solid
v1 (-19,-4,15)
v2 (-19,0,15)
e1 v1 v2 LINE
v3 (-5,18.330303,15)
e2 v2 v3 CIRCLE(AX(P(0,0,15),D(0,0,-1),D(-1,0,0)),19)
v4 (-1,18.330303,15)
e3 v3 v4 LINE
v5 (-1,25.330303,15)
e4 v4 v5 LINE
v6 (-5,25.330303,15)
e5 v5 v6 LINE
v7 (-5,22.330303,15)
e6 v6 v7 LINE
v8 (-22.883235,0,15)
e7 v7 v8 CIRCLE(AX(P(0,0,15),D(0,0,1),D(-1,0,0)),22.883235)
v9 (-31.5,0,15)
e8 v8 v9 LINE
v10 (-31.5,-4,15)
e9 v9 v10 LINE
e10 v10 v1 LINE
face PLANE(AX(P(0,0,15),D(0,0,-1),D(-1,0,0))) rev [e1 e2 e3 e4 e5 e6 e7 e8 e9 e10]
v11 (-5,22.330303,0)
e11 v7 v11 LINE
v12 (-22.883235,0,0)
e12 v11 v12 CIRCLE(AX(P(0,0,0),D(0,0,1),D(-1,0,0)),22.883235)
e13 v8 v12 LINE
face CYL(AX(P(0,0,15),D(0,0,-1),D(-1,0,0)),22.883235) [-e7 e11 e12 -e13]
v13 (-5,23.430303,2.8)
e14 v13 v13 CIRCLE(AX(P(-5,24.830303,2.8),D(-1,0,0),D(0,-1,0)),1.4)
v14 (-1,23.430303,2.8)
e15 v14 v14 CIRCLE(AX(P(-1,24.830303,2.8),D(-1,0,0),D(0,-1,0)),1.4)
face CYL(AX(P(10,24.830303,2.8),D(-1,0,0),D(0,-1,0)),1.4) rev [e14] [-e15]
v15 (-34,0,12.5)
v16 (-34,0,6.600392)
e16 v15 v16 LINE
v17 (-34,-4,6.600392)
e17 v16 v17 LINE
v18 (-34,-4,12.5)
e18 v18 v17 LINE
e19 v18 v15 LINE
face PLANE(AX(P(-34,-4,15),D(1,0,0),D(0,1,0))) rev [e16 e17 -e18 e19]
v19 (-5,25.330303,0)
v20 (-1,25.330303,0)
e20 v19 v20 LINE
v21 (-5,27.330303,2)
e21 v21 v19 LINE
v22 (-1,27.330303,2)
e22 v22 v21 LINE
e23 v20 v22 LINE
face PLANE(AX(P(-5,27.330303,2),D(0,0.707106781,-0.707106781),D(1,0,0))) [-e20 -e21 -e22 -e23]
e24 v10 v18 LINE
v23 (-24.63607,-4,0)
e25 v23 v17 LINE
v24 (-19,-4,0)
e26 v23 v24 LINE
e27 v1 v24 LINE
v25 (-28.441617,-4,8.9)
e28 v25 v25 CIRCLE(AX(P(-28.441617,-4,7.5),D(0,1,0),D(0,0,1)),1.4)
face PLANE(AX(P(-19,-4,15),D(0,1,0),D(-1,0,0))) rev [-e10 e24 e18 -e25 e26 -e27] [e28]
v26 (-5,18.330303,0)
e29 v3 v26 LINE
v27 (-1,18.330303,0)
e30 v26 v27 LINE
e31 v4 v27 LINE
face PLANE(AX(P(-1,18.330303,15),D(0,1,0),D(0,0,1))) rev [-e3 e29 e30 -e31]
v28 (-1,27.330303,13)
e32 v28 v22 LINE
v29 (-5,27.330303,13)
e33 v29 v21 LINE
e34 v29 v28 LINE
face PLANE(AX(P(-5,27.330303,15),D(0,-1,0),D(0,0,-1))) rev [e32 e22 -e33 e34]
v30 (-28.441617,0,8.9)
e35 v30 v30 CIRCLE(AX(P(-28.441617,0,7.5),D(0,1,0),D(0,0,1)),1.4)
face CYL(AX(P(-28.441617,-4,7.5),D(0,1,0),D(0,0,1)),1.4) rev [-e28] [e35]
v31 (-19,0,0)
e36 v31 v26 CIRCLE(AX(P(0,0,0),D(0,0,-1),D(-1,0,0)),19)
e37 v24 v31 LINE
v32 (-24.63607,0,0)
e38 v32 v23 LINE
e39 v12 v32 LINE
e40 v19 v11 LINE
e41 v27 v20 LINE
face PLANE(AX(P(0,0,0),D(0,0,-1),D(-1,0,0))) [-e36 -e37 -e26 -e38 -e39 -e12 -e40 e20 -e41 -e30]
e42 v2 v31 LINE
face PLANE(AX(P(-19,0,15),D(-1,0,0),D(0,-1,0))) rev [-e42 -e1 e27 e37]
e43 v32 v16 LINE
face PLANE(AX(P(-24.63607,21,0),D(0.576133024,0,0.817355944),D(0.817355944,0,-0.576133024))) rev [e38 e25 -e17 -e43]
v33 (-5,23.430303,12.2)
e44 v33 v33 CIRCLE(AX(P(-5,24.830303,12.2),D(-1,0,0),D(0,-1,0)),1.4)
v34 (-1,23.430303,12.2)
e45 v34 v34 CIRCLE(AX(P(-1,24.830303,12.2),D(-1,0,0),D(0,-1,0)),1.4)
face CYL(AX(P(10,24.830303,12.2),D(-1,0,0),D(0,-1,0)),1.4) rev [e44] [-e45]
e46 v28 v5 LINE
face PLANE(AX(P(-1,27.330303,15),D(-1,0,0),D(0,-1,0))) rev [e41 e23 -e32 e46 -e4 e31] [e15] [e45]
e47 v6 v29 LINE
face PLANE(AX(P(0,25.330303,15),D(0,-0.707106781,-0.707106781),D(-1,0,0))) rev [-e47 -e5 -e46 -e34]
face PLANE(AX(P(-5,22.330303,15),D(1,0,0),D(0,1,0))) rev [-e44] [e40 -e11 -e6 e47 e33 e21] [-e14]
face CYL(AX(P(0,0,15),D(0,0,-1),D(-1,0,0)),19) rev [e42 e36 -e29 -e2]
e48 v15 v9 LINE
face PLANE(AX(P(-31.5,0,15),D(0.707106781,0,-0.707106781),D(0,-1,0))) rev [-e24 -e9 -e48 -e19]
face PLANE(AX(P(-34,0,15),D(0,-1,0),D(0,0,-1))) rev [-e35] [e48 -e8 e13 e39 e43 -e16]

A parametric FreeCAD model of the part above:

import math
import FreeCAD as App
import Part
import Sketcher
from FreeCAD import Vector
Q = App.Units.Quantity


def edges_at(feature, points):
    """Names of the edges that pass closest to the given points."""
    edges = feature.Shape.Edges
    near = lambda p: min(range(len(edges)), key=lambda i: edges[i].distToShape(Part.Vertex(*p))[0])
    return sorted({f"Edge{near(p) + 1}" for p in points})


def add_polygon(sketch, points):
    """Adds a closed chain of lines whose ends are joined by coincident constraints."""
    first, n = sketch.GeometryCount, len(points)
    for a, b in zip(points, points[1:] + points[:1]):
        sketch.addGeometry(Part.LineSegment(App.Vector(*a, 0), App.Vector(*b, 0)), False)
    for i in range(n):
        sketch.addConstraint(Sketcher.Constraint("Coincident", first + i, 2, first + (i + 1) % n, 1))

doc = App.newDocument("Part")
body = doc.addObject("PartDesign::Body", "Body")

sketch1 = body.newObject("Sketcher::SketchObject", "Sketch")
sketch1.AttachmentSupport = (doc.getObject("XY_Plane"), [""])
sketch1.MapMode = "FlatFace"
sketch1.addGeometry(Part.LineSegment(Vector(-19, -4, 0), Vector(-19, 0, 0)), False)
sketch1.addGeometry(Part.ArcOfCircle(Part.Circle(Vector(0, 0, 0), Vector(0, 0, 1), 19), math.radians(105.257523), math.radians(180)), False)
sketch1.addGeometry(Part.LineSegment(Vector(-5, 18.330303, 0), Vector(-1, 18.330303, 0)), False)
sketch1.addGeometry(Part.LineSegment(Vector(-1, 18.330303, 0), Vector(-1, 27.330303, 0)), False)
sketch1.addGeometry(Part.LineSegment(Vector(-1, 27.330303, 0), Vector(-5, 27.330303, 0)), False)
sketch1.addGeometry(Part.LineSegment(Vector(-5, 27.330303, 0), Vector(-5, 22.330303, 0)), False)
sketch1.addGeometry(Part.ArcOfCircle(Part.Circle(Vector(0, 0, 0), Vector(0, 0, 1), 22.883235), math.radians(102.62098), math.radians(180)), False)
sketch1.addGeometry(Part.LineSegment(Vector(-22.883235, 0, 0), Vector(-34, 0, 0)), False)
sketch1.addGeometry(Part.LineSegment(Vector(-34, 0, 0), Vector(-34, -4, 0)), False)
sketch1.addGeometry(Part.LineSegment(Vector(-34, -4, 0), Vector(-19, -4, 0)), False)
sketch1.addConstraint(Sketcher.Constraint("Tangent", 0, 2, 1, 2))
sketch1.addConstraint(Sketcher.Constraint("Coincident", 1, 1, 2, 1))
sketch1.addConstraint(Sketcher.Constraint("Coincident", 2, 2, 3, 1))
sketch1.addConstraint(Sketcher.Constraint("Coincident", 3, 2, 4, 1))
sketch1.addConstraint(Sketcher.Constraint("Coincident", 4, 2, 5, 1))
sketch1.addConstraint(Sketcher.Constraint("Coincident", 5, 2, 6, 1))
sketch1.addConstraint(Sketcher.Constraint("Coincident", 6, 2, 7, 1))
sketch1.addConstraint(Sketcher.Constraint("Coincident", 7, 2, 8, 1))
sketch1.addConstraint(Sketcher.Constraint("Coincident", 8, 2, 9, 1))
sketch1.addConstraint(Sketcher.Constraint("Coincident", 9, 2, 0, 1))
sketch1.addConstraint(Sketcher.Constraint("Vertical", 0))
sketch1.addConstraint(Sketcher.Constraint("Horizontal", 2))
sketch1.addConstraint(Sketcher.Constraint("Vertical", 3))
sketch1.addConstraint(Sketcher.Constraint("Horizontal", 4))
sketch1.addConstraint(Sketcher.Constraint("Vertical", 5))
sketch1.addConstraint(Sketcher.Constraint("Horizontal", 7))
sketch1.addConstraint(Sketcher.Constraint("Vertical", 8))
sketch1.addConstraint(Sketcher.Constraint("Horizontal", 9))
sketch1.addConstraint(Sketcher.Constraint("Coincident", 1, 3, -1, 1))
sketch1.addConstraint(Sketcher.Constraint("Coincident", 6, 3, -1, 1))
sketch1.addConstraint(Sketcher.Constraint("PointOnObject", 6, 2, -1))
sketch1.addConstraint(Sketcher.Constraint("Vertical", 1, 1, 4, 2))
sketch1.addConstraint(Sketcher.Constraint("Equal", 4, 0))
sketch1.addConstraint(Sketcher.Constraint("Radius", 1, 19.0))
sketch1.addConstraint(Sketcher.Constraint("DistanceX", 2, 1, 2, 2, 4.0))
sketch1.addConstraint(Sketcher.Constraint("DistanceX", 9, 1, 9, 2, 15.0))
sketch1.addConstraint(Sketcher.Constraint("DistanceY", 3, 1, 3, 2, 9.0))
sketch1.addConstraint(Sketcher.Constraint("DistanceY", 5, 2, 5, 1, 5.0))
sketch1.addConstraint(Sketcher.Constraint("DistanceX", 1, 1, -1, 1, 5.0))
pad1 = body.newObject("PartDesign::Pad", "Pad")
pad1.Profile = sketch1
pad1.Length = 15
doc.recompute()

chamfer = body.newObject("PartDesign::Chamfer", "Chamfer")
chamfer.Base = (pad1, edges_at(pad1, [(-34, -2, 0), (-34, -2, 15)]))
chamfer.Size = 2.5

sketch2 = body.newObject("Sketcher::SketchObject", "Sketch001")
sketch2.AttachmentSupport = (doc.getObject("YZ_Plane"), [""])
sketch2.MapMode = "FlatFace"
sketch2.AttachmentOffset = App.Placement(Vector(0, 0, -5), App.Rotation())
sketch2.addGeometry(Part.Circle(Vector(24.830303, 2.8, 0), Vector(0, 0, 1), 1.4), False)
sketch2.addGeometry(Part.Circle(Vector(24.830303, 12.2, 0), Vector(0, 0, 1), 1.4), False)
sketch2.addConstraint(Sketcher.Constraint("Equal", 0, 1))
sketch2.addConstraint(Sketcher.Constraint("Vertical", 0, 3, 1, 3))
sketch2.addConstraint(Sketcher.Constraint("Diameter", 0, 2.8))
sketch2.addConstraint(Sketcher.Constraint("DistanceY", -1, 1, 0, 3, 2.8))
sketch2.addConstraint(Sketcher.Constraint("DistanceY", -1, 1, 1, 3, 12.2))
sketch2.addConstraint(Sketcher.Constraint("DistanceX", -1, 1, 0, 3, 24.830303))
pocket1 = body.newObject("PartDesign::Pocket", "Pocket")
pocket1.Profile = sketch2
pocket1.Length = 15
pocket1.Reversed = True
doc.recompute()

chamfer2 = body.newObject("PartDesign::Chamfer", "Chamfer001")
chamfer2.Base = (pocket1, edges_at(pocket1, [(-3, 27.33, 0), (-3, 27.33, 15)]))
chamfer2.Size = 2

sketch3 = body.newObject("Sketcher::SketchObject", "Sketch002")
sketch3.AttachmentSupport = (doc.getObject("XZ_Plane"), [""])
sketch3.MapMode = "FlatFace"
sketch3.addGeometry(Part.Circle(Vector(-28.441617, 7.5, 0), Vector(0, 0, 1), 1.4), False)
sketch3.addConstraint(Sketcher.Constraint("Diameter", 0, 2.8))
sketch3.addConstraint(Sketcher.Constraint("DistanceY", -1, 1, 0, 3, 7.5))
sketch3.addConstraint(Sketcher.Constraint("DistanceX", 0, 3, -1, 1, 28.441617))
pocket2 = body.newObject("PartDesign::Pocket", "Pocket001")
pocket2.Profile = sketch3
pocket2.Type = "ThroughAll"
pocket2.Reversed = True

sketch4 = body.newObject("Sketcher::SketchObject", "Sketch003")
sketch4.AttachmentSupport = (doc.getObject("XZ_Plane"), [""])
sketch4.MapMode = "FlatFace"
sketch4.AttachmentOffset = App.Placement(Vector(0, 0, 4), App.Rotation())
add_polygon(sketch4, [(-24.63607, 0), (-34, 6.600392), (-34, 2.5), (-31.5, 0)])
sketch4.addConstraint(Sketcher.Constraint("Vertical", 1))
sketch4.addConstraint(Sketcher.Constraint("Horizontal", 3))
sketch4.addConstraint(Sketcher.Constraint("PointOnObject", 2, 2, -1))
sketch4.addConstraint(Sketcher.Constraint("Angle", 2, Q("-45 deg")))
sketch4.addConstraint(Sketcher.Constraint("DistanceX", 0, 2, -1, 1, 34.0))
sketch4.addConstraint(Sketcher.Constraint("DistanceY", -1, 1, 1, 2, 2.5))
sketch4.addConstraint(Sketcher.Constraint("DistanceX", 3, 1, 3, 2, 6.86393))
sketch4.addConstraint(Sketcher.Constraint("DistanceY", 1, 2, 1, 1, 4.100392))
pocket3 = body.newObject("PartDesign::Pocket", "Pocket002")
pocket3.Profile = sketch4
pocket3.Length = 25

doc.recompute()
